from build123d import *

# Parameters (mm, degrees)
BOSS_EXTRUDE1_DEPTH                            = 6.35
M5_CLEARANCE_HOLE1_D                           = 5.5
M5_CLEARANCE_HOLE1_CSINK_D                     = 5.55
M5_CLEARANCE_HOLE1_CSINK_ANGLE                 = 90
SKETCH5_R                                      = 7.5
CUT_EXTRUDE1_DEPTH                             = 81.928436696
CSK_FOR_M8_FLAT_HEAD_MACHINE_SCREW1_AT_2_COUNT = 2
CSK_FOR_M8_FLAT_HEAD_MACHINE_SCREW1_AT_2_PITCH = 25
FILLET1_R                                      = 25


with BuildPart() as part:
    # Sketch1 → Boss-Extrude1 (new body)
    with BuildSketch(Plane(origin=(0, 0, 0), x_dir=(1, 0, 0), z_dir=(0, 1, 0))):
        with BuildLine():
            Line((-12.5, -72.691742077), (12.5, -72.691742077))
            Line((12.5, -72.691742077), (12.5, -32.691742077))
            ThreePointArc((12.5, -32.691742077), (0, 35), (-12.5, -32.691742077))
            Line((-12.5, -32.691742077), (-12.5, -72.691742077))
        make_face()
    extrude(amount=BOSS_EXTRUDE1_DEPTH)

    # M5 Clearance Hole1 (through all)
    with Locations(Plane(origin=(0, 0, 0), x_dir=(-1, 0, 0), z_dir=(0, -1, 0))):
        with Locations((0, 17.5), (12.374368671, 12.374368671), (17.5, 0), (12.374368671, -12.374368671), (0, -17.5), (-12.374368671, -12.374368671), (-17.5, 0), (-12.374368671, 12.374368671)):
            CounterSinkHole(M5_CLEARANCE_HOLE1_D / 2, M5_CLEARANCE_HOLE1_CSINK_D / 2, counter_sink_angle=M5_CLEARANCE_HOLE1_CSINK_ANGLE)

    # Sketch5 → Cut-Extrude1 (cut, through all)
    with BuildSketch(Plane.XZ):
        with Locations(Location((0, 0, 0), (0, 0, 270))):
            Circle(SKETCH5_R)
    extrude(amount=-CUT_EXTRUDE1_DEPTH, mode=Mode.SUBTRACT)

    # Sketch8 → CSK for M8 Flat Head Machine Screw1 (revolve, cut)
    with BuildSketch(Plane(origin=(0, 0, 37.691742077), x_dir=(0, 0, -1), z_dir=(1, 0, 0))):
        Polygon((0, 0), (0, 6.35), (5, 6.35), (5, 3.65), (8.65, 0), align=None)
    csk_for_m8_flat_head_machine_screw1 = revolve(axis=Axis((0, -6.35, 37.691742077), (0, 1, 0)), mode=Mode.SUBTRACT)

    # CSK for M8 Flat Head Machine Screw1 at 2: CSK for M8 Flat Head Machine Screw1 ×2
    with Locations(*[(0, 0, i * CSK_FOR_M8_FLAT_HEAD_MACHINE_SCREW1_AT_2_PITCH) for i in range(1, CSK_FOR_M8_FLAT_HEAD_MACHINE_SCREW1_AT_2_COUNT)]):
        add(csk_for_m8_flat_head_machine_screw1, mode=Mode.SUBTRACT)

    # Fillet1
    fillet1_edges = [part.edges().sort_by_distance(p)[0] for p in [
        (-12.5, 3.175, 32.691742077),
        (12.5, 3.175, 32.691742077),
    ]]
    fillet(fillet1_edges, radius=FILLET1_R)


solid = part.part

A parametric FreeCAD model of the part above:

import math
import FreeCAD as App
import Part
import Sketcher
from FreeCAD import Vector
Q = App.Units.Quantity


def edges_at(feature, points):
    """Names of the edges that pass closest to the given points."""
    edges = feature.Shape.Edges
    near = lambda p: min(range(len(edges)), key=lambda i: edges[i].distToShape(Part.Vertex(*p))[0])
    return sorted({f"Edge{near(p) + 1}" for p in points})

doc = App.newDocument("Part")
body = doc.addObject("PartDesign::Body", "Body")

sketch1 = doc.addObject("Sketcher::SketchObject", "Sketch")
body.addObject(sketch1)
sketch1.AttachmentSupport = (doc.XZ_Plane, [""])
sketch1.MapMode = "FlatFace"
sketch1.addGeometry([
    Part.LineSegment(Vector(-12, 73, 0), Vector(12, 73, 0)),
    Part.LineSegment(Vector(12, 73, 0), Vector(12, 33, 0)),
    Part.ArcOfCircle(Part.Circle(Vector(0, 0, 0), Vector(0, 0, 1), 35), math.radians(111), math.radians(429)),
    Part.LineSegment(Vector(-12, 33, 0), Vector(-12, 73, 0)),
], False)
sketch1.addConstraint([
    Sketcher.Constraint("Coincident", 0, 2, 1, 1),
    Sketcher.Constraint("Coincident", 1, 2, 2, 2),
    Sketcher.Constraint("Coincident", 2, 1, 3, 1),
    Sketcher.Constraint("Coincident", 3, 2, 0, 1),
    Sketcher.Constraint("Horizontal", 0),
    Sketcher.Constraint("Vertical", 1),
    Sketcher.Constraint("Vertical", 3),
    Sketcher.Constraint("Coincident", 2, 3, -1, 1),
    Sketcher.Constraint("Horizontal", 1, 2, 2, 1),
    Sketcher.Constraint("Radius", 2, 35.0),
    Sketcher.Constraint("DistanceX", 0, 1, 0, 2, 25.0),
    Sketcher.Constraint("DistanceY", 1, 2, 1, 1, 40.0),
])
pad1 = doc.addObject("PartDesign::Pad", "Pad")
body.addObject(pad1)
pad1.Profile = sketch1
pad1.Length = 6.35
pad1.Reversed = True

sketch2 = doc.addObject("Sketcher::SketchObject", "Sketch001")
body.addObject(sketch2)
sketch2.AttachmentSupport = (doc.XZ_Plane, [""])
sketch2.MapMode = "FlatFace"
sketch2.addGeometry([
    Part.Circle(Vector(0, -17.5, 0), Vector(0, 0, 1), 2.8),
    Part.Circle(Vector(-12.4, -12.4, 0), Vector(0, 0, 1), 2.8),
    Part.Circle(Vector(-17.5, 0, 0), Vector(0, 0, 1), 2.8),
    Part.Circle(Vector(-12.4, 12.4, 0), Vector(0, 0, 1), 2.8),
    Part.Circle(Vector(0, 17.5, 0), Vector(0, 0, 1), 2.8),
    Part.Circle(Vector(12.4, 12.4, 0), Vector(0, 0, 1), 2.8),
    Part.Circle(Vector(17.5, 0, 0), Vector(0, 0, 1), 2.8),
    Part.Circle(Vector(12.4, -12.4, 0), Vector(0, 0, 1), 2.8),
], False)
sketch2.addConstraint([
    Sketcher.Constraint("Equal", 0, 1),
    Sketcher.Constraint("Equal", 1, 2),
    Sketcher.Constraint("Equal", 2, 3),
    Sketcher.Constraint("Equal", 3, 4),
    Sketcher.Constraint("Equal", 4, 5),
    Sketcher.Constraint("Equal", 5, 6),
    Sketcher.Constraint("Equal", 6, 7),
    Sketcher.Constraint("Symmetric", 0, 3, 4, 3, -1, 1),
    Sketcher.Constraint("Symmetric", 1, 3, 5, 3, -1, 1),
    Sketcher.Constraint("Symmetric", 2, 3, 6, 3, -1, 1),
    Sketcher.Constraint("Symmetric", 3, 3, 7, 3, -1, 1),
    Sketcher.Constraint("Symmetric", 3, 3, 5, 3, -2),
    Sketcher.Constraint("PointOnObject", 0, 3, -2),
    Sketcher.Constraint("PointOnObject", 2, 3, -1),
    Sketcher.Constraint("Diameter", 0, 5.5),
    Sketcher.Constraint("DistanceY", 0, 3, 4, 3, 35.0),
    Sketcher.Constraint("DistanceX", 2, 3, -1, 1, 17.5),
    Sketcher.Constraint("DistanceX", 1, 3, -1, 1, 12.374369),
    Sketcher.Constraint("DistanceY", 1, 3, -1, 1, 12.374369),
])
doc.recompute()
hole = doc.addObject("PartDesign::Hole", "Hole")
body.addObject(hole)
hole.Profile = sketch2
hole.ThreadType = "None"
hole.Diameter = 5.5
hole.DepthType = "ThroughAll"
hole.HoleCutType = "Countersink"
hole.HoleCutDiameter = 5.55
hole.HoleCutCountersinkAngle = 90

sketch3 = doc.addObject("Sketcher::SketchObject", "Sketch002")
body.addObject(sketch3)
sketch3.AttachmentSupport = (doc.XZ_Plane, [""])
sketch3.MapMode = "FlatFace"
sketch3.addGeometry(Part.Circle(Vector(0, 0, 0), Vector(0, 0, 1), 8), False)
sketch3.addConstraint([
    Sketcher.Constraint("Coincident", 0, 3, -1, 1),
    Sketcher.Constraint("Diameter", 0, 15.0),
])
pocket1 = doc.addObject("PartDesign::Pocket", "Pocket")
body.addObject(pocket1)
pocket1.Profile = sketch3
pocket1.Type = "ThroughAll"

sketch4 = doc.addObject("Sketcher::SketchObject", "Sketch003")
body.addObject(sketch4)
sketch4.AttachmentSupport = (doc.YZ_Plane, [""])
sketch4.MapMode = "FlatFace"
sketch4.addGeometry([
    Part.LineSegment(Vector(6.3, 37.7, 0), Vector(0, 37.7, 0)),
    Part.LineSegment(Vector(0, 37.7, 0), Vector(0, 29, 0)),
    Part.LineSegment(Vector(0, 29, 0), Vector(3.6, 32.7, 0)),
    Part.LineSegment(Vector(3.6, 32.7, 0), Vector(6.3, 32.7, 0)),
    Part.LineSegment(Vector(6.3, 32.7, 0), Vector(6.3, 37.7, 0)),
], False)
sketch4.addGeometry(Part.LineSegment(Vector(0, 37.7, 0), Vector(6.3, 37.7, 0)), True)
sketch4.addConstraint([
    Sketcher.Constraint("Coincident", 0, 2, 1, 1),
    Sketcher.Constraint("Coincident", 1, 2, 2, 1),
    Sketcher.Constraint("Coincident", 2, 2, 3, 1),
    Sketcher.Constraint("Coincident", 3, 2, 4, 1),
    Sketcher.Constraint("Coincident", 4, 2, 0, 1),
    Sketcher.Constraint("Horizontal", 0),
    Sketcher.Constraint("Vertical", 1),
    Sketcher.Constraint("Horizontal", 3),
    Sketcher.Constraint("Vertical", 4),
    Sketcher.Constraint("Horizontal", 5),
    Sketcher.Constraint("Coincident", 5, 1, 0, 2),
    Sketcher.Constraint("PointOnObject", 0, 2, -2),
    Sketcher.Constraint("Vertical", 3, 2, 5, 2),
    Sketcher.Constraint("DistanceY", 4, 1, 4, 2, 5.0),
    Sketcher.Constraint("Angle", 2, Q("45 deg")),
    Sketcher.Constraint("DistanceX", 3, 1, 3, 2, 2.7),
    Sketcher.Constraint("DistanceX", 0, 2, 0, 1, 6.35),
    Sketcher.Constraint("DistanceY", -1, 1, 0, 2, 37.691742),
])
groove = doc.addObject("PartDesign::Groove", "Groove")
body.addObject(groove)
groove.Profile = sketch4
groove.ReferenceAxis = (sketch4, ["Axis0"])
groove.Angle = 360
doc.recompute()

linearpattern = doc.addObject("PartDesign::LinearPattern", "LinearPattern")
body.addObject(linearpattern)
linearpattern.Originals = [groove]
linearpattern.Direction = (doc.Z_Axis, [""])
linearpattern.Mode = "offset"
linearpattern.Offset = 25
linearpattern.Occurrences = 2
body.Tip = linearpattern
doc.recompute()

fillet = doc.addObject("PartDesign::Fillet", "Fillet")
body.addObject(fillet)
fillet.Base = (linearpattern, edges_at(linearpattern, [(-12.5, 3.175, 32.692), (12.5, 3.175, 32.692)]))
fillet.Radius = 25

doc.recompute()
